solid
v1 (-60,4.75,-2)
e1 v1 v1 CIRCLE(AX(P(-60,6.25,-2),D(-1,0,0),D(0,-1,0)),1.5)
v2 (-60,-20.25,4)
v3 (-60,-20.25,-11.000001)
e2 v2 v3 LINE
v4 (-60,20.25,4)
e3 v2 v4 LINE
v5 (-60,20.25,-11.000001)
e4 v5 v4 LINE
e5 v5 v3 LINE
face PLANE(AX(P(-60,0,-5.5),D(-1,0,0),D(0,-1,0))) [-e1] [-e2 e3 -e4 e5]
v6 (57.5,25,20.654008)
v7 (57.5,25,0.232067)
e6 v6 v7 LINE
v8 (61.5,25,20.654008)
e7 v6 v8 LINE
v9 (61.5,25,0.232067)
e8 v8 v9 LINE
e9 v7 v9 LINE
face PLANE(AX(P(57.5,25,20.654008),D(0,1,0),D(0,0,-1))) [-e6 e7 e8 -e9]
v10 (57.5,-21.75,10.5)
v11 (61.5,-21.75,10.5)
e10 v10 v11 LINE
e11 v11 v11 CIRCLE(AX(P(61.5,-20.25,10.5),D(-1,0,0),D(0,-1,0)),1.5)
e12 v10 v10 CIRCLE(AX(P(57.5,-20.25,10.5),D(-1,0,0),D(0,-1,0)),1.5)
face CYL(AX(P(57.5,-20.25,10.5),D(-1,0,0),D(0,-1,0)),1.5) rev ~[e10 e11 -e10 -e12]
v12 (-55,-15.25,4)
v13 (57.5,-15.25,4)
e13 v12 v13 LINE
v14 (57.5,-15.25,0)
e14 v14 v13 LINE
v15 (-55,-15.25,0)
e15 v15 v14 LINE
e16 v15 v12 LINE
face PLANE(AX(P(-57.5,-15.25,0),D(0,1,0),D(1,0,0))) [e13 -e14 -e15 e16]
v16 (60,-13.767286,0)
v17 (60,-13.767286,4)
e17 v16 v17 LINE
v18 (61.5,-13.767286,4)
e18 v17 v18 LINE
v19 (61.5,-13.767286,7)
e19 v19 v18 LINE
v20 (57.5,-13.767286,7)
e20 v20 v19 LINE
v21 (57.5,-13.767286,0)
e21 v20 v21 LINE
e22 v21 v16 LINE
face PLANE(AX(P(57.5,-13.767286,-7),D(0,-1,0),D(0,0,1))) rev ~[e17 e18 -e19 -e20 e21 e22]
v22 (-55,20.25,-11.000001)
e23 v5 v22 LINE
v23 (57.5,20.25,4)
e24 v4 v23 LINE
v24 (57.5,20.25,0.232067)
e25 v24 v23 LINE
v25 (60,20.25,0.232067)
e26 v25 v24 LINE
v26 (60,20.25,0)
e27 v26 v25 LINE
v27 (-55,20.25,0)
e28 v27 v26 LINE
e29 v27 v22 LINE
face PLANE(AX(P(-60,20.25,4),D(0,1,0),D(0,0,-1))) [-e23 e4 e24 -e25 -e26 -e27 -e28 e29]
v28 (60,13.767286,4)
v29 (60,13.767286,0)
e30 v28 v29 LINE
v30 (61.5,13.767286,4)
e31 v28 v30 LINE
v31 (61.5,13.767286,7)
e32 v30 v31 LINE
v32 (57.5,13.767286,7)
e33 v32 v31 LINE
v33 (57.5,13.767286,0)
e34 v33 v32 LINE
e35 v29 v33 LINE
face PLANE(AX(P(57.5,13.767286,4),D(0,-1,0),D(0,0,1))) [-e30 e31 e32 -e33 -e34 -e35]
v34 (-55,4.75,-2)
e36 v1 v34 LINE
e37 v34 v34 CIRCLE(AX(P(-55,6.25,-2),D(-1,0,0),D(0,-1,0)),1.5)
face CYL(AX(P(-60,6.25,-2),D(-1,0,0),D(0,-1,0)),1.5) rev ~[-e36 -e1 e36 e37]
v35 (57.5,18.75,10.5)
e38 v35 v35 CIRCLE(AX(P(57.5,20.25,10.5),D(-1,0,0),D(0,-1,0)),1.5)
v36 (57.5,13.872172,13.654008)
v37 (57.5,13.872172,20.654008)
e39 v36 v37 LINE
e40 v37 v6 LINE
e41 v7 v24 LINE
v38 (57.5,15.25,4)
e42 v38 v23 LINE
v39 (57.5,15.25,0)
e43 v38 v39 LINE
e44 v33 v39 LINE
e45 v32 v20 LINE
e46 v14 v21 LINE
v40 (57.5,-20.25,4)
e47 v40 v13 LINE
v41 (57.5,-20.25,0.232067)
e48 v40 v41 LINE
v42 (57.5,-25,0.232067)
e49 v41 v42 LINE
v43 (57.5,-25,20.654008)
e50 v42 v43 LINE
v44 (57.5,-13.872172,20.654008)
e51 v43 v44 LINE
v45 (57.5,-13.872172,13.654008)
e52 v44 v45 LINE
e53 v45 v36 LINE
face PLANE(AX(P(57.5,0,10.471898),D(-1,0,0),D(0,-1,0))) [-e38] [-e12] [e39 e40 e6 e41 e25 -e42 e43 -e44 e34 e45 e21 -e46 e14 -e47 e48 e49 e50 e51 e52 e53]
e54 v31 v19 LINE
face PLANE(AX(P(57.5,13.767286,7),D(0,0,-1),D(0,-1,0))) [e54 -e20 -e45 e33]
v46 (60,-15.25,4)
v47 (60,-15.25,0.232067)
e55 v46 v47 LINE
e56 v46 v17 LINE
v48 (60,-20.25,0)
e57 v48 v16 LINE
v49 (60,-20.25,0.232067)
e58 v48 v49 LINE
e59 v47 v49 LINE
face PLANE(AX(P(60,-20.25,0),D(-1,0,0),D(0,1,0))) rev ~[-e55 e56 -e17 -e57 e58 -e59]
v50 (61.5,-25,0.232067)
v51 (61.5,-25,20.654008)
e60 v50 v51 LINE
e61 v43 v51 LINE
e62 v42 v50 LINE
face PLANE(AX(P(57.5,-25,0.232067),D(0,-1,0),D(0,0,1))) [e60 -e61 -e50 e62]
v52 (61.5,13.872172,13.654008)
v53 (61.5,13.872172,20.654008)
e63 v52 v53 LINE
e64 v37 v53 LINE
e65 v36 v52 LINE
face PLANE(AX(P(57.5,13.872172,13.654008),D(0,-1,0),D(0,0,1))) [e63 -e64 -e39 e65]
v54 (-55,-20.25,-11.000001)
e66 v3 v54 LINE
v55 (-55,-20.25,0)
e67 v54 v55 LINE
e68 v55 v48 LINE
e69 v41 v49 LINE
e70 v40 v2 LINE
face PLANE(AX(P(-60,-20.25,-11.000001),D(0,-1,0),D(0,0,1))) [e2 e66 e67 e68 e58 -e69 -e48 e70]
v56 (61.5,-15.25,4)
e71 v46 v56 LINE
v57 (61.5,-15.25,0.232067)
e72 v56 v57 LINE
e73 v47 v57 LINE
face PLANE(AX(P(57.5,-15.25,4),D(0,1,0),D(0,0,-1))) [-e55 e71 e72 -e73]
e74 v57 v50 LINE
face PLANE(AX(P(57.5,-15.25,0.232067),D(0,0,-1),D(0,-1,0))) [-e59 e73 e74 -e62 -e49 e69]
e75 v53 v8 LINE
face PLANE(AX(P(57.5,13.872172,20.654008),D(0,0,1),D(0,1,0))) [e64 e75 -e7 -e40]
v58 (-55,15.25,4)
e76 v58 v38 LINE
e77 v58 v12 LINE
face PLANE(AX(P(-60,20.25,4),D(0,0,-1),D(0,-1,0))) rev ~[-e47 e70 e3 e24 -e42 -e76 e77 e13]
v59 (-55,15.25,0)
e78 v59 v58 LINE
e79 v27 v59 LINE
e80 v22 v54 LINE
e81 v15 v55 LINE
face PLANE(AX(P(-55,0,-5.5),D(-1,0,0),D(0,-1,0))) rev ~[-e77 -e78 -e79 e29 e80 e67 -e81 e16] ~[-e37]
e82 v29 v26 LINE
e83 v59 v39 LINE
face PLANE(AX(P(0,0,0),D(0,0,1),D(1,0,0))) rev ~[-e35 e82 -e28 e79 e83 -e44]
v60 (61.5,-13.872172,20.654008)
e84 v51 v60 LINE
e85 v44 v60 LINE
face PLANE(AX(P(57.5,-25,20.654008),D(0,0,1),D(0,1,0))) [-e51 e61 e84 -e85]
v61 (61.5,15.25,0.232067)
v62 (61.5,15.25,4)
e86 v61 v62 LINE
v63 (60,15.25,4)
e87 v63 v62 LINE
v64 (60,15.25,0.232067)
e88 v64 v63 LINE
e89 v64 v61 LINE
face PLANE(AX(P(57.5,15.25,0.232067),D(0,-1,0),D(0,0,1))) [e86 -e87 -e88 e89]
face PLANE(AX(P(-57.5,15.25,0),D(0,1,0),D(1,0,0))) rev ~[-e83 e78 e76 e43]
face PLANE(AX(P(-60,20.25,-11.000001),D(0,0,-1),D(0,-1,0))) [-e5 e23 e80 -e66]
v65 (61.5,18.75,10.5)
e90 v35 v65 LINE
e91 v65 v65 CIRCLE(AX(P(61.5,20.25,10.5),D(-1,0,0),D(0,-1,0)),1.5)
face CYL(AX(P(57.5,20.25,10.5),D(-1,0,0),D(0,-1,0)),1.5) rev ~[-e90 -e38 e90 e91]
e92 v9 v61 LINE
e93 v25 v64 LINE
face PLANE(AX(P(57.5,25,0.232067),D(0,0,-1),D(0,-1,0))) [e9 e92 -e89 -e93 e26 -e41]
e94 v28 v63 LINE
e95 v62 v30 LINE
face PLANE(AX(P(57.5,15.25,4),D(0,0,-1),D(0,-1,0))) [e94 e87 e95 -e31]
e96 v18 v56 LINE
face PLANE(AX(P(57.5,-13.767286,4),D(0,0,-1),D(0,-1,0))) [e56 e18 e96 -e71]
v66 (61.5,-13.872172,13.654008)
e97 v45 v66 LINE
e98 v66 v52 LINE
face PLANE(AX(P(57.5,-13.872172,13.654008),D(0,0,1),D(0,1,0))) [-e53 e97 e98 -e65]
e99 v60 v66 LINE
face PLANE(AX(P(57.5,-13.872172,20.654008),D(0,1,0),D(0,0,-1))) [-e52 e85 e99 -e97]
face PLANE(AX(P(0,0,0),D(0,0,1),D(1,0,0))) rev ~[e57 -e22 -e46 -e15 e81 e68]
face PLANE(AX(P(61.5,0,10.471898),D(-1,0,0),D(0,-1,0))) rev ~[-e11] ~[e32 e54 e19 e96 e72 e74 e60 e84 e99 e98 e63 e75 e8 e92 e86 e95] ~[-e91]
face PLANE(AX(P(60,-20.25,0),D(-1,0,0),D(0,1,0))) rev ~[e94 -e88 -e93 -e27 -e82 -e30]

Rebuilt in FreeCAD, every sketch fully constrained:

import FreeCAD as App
import Part
import Sketcher

V = App.Vector

doc = App.newDocument("Part")
body = doc.addObject("PartDesign::Body", "Body")

# Sketch on XY plane
sketch1 = body.newObject("Sketcher::SketchObject", "Sketch")
sketch1.AttachmentSupport = (doc.getObject("XY_Plane"), [""])
sketch1.MapMode = "FlatFace"
sketch1.addGeometry([
    Part.LineSegment(V(-60, 20, 0), V(-60, -20, 0)),  # 0
    Part.LineSegment(V(-60, -20, 0), V(60, -20, 0)),  # 1
    Part.LineSegment(V(60, -20, 0), V(60, 20, 0)),  # 2
    Part.LineSegment(V(60, 20, 0), V(-60, 20, 0)),  # 3
    Part.LineSegment(V(58, -15, 0), V(-58, -15, 0)),  # 4
    Part.LineSegment(V(-58, -15, 0), V(-58, 15, 0)),  # 5
    Part.LineSegment(V(-58, 15, 0), V(58, 15, 0)),  # 6
    Part.LineSegment(V(58, 15, 0), V(58, -15, 0)),  # 7
], False)
sketch1.addConstraint([
    Sketcher.Constraint("Coincident", 0, 2, 1, 1),
    Sketcher.Constraint("Coincident", 1, 2, 2, 1),
    Sketcher.Constraint("Coincident", 2, 2, 3, 1),
    Sketcher.Constraint("Coincident", 3, 2, 0, 1),
    Sketcher.Constraint("Coincident", 4, 2, 5, 1),
    Sketcher.Constraint("Coincident", 5, 2, 6, 1),
    Sketcher.Constraint("Coincident", 6, 2, 7, 1),
    Sketcher.Constraint("Coincident", 7, 2, 4, 1),
    Sketcher.Constraint("Vertical", 0),
    Sketcher.Constraint("Horizontal", 1),
    Sketcher.Constraint("Vertical", 2),
    Sketcher.Constraint("Horizontal", 3),
    Sketcher.Constraint("Horizontal", 4),
    Sketcher.Constraint("Vertical", 5),
    Sketcher.Constraint("Horizontal", 6),
    Sketcher.Constraint("Vertical", 7),
    Sketcher.Constraint("Symmetric", 0, 2, 2, 2, -1, 1),
    Sketcher.Constraint("Symmetric", 4, 2, 6, 2, -1, 1),
    Sketcher.Constraint("DistanceX", 1, 1, 1, 2, 120.0),
    Sketcher.Constraint("DistanceX", 4, 2, 4, 1, 115.0),
    Sketcher.Constraint("DistanceY", 0, 2, 0, 1, 40.5),
    Sketcher.Constraint("DistanceY", 5, 1, 5, 2, 30.5),
])
pad1 = body.newObject("PartDesign::Pad", "Pad")
pad1.Profile = sketch1
pad1.Length = 4

# Sketch on YZ plane
sketch2 = body.newObject("Sketcher::SketchObject", "Sketch001")
sketch2.AttachmentSupport = (doc.getObject("YZ_Plane"), [""])
sketch2.MapMode = "FlatFace"
sketch2.AttachmentOffset = App.Placement(V(0, 0, -60), App.Rotation())
sketch2.addGeometry([
    Part.LineSegment(V(20.2, -11, 0), V(-20.2, -11, 0)),  # 0
    Part.LineSegment(V(-20.2, -11, 0), V(-20.2, 4, 0)),  # 1
    Part.LineSegment(V(-20.2, 4, 0), V(20.2, 4, 0)),  # 2
    Part.LineSegment(V(20.2, 4, 0), V(20.2, -11, 0)),  # 3
    Part.Circle(V(6.2, -2, 0), V(0, 0, 1), 1.5),  # 4
], False)
sketch2.addConstraint([
    Sketcher.Constraint("Coincident", 0, 2, 1, 1),
    Sketcher.Constraint("Coincident", 1, 2, 2, 1),
    Sketcher.Constraint("Coincident", 2, 2, 3, 1),
    Sketcher.Constraint("Coincident", 3, 2, 0, 1),
    Sketcher.Constraint("Horizontal", 0),
    Sketcher.Constraint("Vertical", 1),
    Sketcher.Constraint("Horizontal", 2),
    Sketcher.Constraint("Vertical", 3),
    Sketcher.Constraint("Diameter", 4, 3.0),
    Sketcher.Constraint("DistanceY", 1, 1, 1, 2, 15.000001),
    Sketcher.Constraint("DistanceX", 0, 2, 0, 1, 40.5),
    Sketcher.Constraint("DistanceY", 4, 3, -1, 1, 2.0),
    Sketcher.Constraint("DistanceY", 0, 2, -1, 1, 11.000001),
    Sketcher.Constraint("DistanceX", 4, 3, 2, 2, 14.0),
    Sketcher.Constraint("DistanceX", -1, 1, 4, 3, 6.25),
])
pad2 = body.newObject("PartDesign::Pad", "Pad001")
pad2.Profile = sketch2
pad2.Length = 5

# Sketch on YZ plane
sketch3 = body.newObject("Sketcher::SketchObject", "Sketch002")
sketch3.AttachmentSupport = (doc.getObject("YZ_Plane"), [""])
sketch3.MapMode = "FlatFace"
sketch3.AttachmentOffset = App.Placement(V(0, 0, 57.5), App.Rotation())
sketch3.addGeometry([
    Part.LineSegment(V(-25, 0.2, 0), V(-25, 20.7, 0)),  # 0
    Part.LineSegment(V(-25, 20.7, 0), V(-13.9, 20.7, 0)),  # 1
    Part.LineSegment(V(-13.9, 20.7, 0), V(-13.9, 13.7, 0)),  # 2
    Part.LineSegment(V(-13.9, 13.7, 0), V(13.9, 13.7, 0)),  # 3
    Part.LineSegment(V(13.9, 13.7, 0), V(13.9, 20.7, 0)),  # 4
    Part.LineSegment(V(13.9, 20.7, 0), V(25, 20.7, 0)),  # 5
    Part.LineSegment(V(25, 20.7, 0), V(25, 0.2, 0)),  # 6
    Part.LineSegment(V(25, 0.2, 0), V(15.2, 0.2, 0)),  # 7
    Part.LineSegment(V(15.2, 0.2, 0), V(15.2, 4, 0)),  # 8
    Part.LineSegment(V(15.2, 4, 0), V(13.8, 4, 0)),  # 9
    Part.LineSegment(V(13.8, 4, 0), V(13.8, 7, 0)),  # 10
    Part.LineSegment(V(13.8, 7, 0), V(-13.8, 7, 0)),  # 11
    Part.LineSegment(V(-13.8, 7, 0), V(-13.8, 4, 0)),  # 12
    Part.LineSegment(V(-13.8, 4, 0), V(-15.2, 4, 0)),  # 13
    Part.LineSegment(V(-15.2, 4, 0), V(-15.2, 0.2, 0)),  # 14
    Part.LineSegment(V(-15.2, 0.2, 0), V(-25, 0.2, 0)),  # 15
    Part.Circle(V(20.2, 10.5, 0), V(0, 0, 1), 1.5),  # 16
    Part.Circle(V(-20.2, 10.5, 0), V(0, 0, 1), 1.5),  # 17
], False)
sketch3.addConstraint([
    Sketcher.Constraint("Coincident", 0, 2, 1, 1),
    Sketcher.Constraint("Coincident", 1, 2, 2, 1),
    Sketcher.Constraint("Coincident", 2, 2, 3, 1),
    Sketcher.Constraint("Coincident", 3, 2, 4, 1),
    Sketcher.Constraint("Coincident", 4, 2, 5, 1),
    Sketcher.Constraint("Coincident", 5, 2, 6, 1),
    Sketcher.Constraint("Coincident", 6, 2, 7, 1),
    Sketcher.Constraint("Coincident", 7, 2, 8, 1),
    Sketcher.Constraint("Coincident", 8, 2, 9, 1),
    Sketcher.Constraint("Coincident", 9, 2, 10, 1),
    Sketcher.Constraint("Coincident", 10, 2, 11, 1),
    Sketcher.Constraint("Coincident", 11, 2, 12, 1),
    Sketcher.Constraint("Coincident", 12, 2, 13, 1),
    Sketcher.Constraint("Coincident", 13, 2, 14, 1),
    Sketcher.Constraint("Coincident", 14, 2, 15, 1),
    Sketcher.Constraint("Coincident", 15, 2, 0, 1),
    Sketcher.Constraint("Vertical", 0),
    Sketcher.Constraint("Horizontal", 1),
    Sketcher.Constraint("Vertical", 2),
    Sketcher.Constraint("Horizontal", 3),
    Sketcher.Constraint("Vertical", 4),
    Sketcher.Constraint("Horizontal", 5),
    Sketcher.Constraint("Vertical", 6),
    Sketcher.Constraint("Horizontal", 7),
    Sketcher.Constraint("Vertical", 8),
    Sketcher.Constraint("Horizontal", 9),
    Sketcher.Constraint("Vertical", 10),
    Sketcher.Constraint("Horizontal", 11),
    Sketcher.Constraint("Vertical", 12),
    Sketcher.Constraint("Horizontal", 13),
    Sketcher.Constraint("Vertical", 14),
    Sketcher.Constraint("Horizontal", 15),
    Sketcher.Constraint("Equal", 16, 17),
    Sketcher.Constraint("Symmetric", 16, 3, 17, 3, -2),
    Sketcher.Constraint("Symmetric", 1, 2, 4, 2, -2),
    Sketcher.Constraint("Symmetric", 9, 2, 12, 2, -2),
    Sketcher.Constraint("Symmetric", 7, 2, 14, 2, -2),
    Sketcher.Constraint("Equal", 1, 5),
    Sketcher.Constraint("Diameter", 16, 3.0),
    Sketcher.Constraint("DistanceY", 2, 2, 2, 1, 7.0),
    Sketcher.Constraint("DistanceY", 10, 1, 10, 2, 3.0),
    Sketcher.Constraint("DistanceX", 0, 2, -1, 1, 25.0),
    Sketcher.Constraint("DistanceY", -1, 1, 8, 2, 4.0),
    Sketcher.Constraint("DistanceX", 7, 2, 16, 3, 5.0),
    Sketcher.Constraint("DistanceX", 7, 2, 7, 1, 9.75),
    Sketcher.Constraint("DistanceY", -1, 1, 16, 3, 10.5),
    Sketcher.Constraint("DistanceX", 1, 1, 1, 2, 11.127828),
    Sketcher.Constraint("DistanceY", 0, 1, 0, 2, 20.421941),
    Sketcher.Constraint("DistanceX", 9, 2, 9, 1, 1.482714),
    Sketcher.Constraint("DistanceY", 8, 1, 8, 2, 3.767933),
])
pad3 = body.newObject("PartDesign::Pad", "Pad002")
pad3.Profile = sketch3
pad3.Length = 4

# Sketch on YZ plane
sketch4 = body.newObject("Sketcher::SketchObject", "Sketch003")
sketch4.AttachmentSupport = (doc.getObject("YZ_Plane"), [""])
sketch4.MapMode = "FlatFace"
sketch4.AttachmentOffset = App.Placement(V(0, 0, 57.5), App.Rotation())
sketch4.addGeometry([
    Part.LineSegment(V(14, 7, 0), V(14, -7, 0)),
    Part.LineSegment(V(14, -7, 0), V(-14, -7, 0)),
    Part.LineSegment(V(-14, -7, 0), V(-14, 7, 0)),
    Part.LineSegment(V(-14, 7, 0), V(14, 7, 0)),
], False)
sketch4.addConstraint([
    Sketcher.Constraint("Coincident", 0, 2, 1, 1),
    Sketcher.Constraint("Coincident", 1, 2, 2, 1),
    Sketcher.Constraint("Coincident", 2, 2, 3, 1),
    Sketcher.Constraint("Coincident", 3, 2, 0, 1),
    Sketcher.Constraint("Vertical", 0),
    Sketcher.Constraint("Horizontal", 1),
    Sketcher.Constraint("Vertical", 2),
    Sketcher.Constraint("Horizontal", 3),
    Sketcher.Constraint("Symmetric", 0, 2, 2, 2, -1, 1),
    Sketcher.Constraint("DistanceY", 0, 2, 0, 1, 14.0),
    Sketcher.Constraint("DistanceX", 1, 2, 1, 1, 27.534572),
])
pocket1 = body.newObject("PartDesign::Pocket", "Pocket")
pocket1.Profile = sketch4
pocket1.Type = "ThroughAll"
pocket1.Reversed = True

doc.recompute()
